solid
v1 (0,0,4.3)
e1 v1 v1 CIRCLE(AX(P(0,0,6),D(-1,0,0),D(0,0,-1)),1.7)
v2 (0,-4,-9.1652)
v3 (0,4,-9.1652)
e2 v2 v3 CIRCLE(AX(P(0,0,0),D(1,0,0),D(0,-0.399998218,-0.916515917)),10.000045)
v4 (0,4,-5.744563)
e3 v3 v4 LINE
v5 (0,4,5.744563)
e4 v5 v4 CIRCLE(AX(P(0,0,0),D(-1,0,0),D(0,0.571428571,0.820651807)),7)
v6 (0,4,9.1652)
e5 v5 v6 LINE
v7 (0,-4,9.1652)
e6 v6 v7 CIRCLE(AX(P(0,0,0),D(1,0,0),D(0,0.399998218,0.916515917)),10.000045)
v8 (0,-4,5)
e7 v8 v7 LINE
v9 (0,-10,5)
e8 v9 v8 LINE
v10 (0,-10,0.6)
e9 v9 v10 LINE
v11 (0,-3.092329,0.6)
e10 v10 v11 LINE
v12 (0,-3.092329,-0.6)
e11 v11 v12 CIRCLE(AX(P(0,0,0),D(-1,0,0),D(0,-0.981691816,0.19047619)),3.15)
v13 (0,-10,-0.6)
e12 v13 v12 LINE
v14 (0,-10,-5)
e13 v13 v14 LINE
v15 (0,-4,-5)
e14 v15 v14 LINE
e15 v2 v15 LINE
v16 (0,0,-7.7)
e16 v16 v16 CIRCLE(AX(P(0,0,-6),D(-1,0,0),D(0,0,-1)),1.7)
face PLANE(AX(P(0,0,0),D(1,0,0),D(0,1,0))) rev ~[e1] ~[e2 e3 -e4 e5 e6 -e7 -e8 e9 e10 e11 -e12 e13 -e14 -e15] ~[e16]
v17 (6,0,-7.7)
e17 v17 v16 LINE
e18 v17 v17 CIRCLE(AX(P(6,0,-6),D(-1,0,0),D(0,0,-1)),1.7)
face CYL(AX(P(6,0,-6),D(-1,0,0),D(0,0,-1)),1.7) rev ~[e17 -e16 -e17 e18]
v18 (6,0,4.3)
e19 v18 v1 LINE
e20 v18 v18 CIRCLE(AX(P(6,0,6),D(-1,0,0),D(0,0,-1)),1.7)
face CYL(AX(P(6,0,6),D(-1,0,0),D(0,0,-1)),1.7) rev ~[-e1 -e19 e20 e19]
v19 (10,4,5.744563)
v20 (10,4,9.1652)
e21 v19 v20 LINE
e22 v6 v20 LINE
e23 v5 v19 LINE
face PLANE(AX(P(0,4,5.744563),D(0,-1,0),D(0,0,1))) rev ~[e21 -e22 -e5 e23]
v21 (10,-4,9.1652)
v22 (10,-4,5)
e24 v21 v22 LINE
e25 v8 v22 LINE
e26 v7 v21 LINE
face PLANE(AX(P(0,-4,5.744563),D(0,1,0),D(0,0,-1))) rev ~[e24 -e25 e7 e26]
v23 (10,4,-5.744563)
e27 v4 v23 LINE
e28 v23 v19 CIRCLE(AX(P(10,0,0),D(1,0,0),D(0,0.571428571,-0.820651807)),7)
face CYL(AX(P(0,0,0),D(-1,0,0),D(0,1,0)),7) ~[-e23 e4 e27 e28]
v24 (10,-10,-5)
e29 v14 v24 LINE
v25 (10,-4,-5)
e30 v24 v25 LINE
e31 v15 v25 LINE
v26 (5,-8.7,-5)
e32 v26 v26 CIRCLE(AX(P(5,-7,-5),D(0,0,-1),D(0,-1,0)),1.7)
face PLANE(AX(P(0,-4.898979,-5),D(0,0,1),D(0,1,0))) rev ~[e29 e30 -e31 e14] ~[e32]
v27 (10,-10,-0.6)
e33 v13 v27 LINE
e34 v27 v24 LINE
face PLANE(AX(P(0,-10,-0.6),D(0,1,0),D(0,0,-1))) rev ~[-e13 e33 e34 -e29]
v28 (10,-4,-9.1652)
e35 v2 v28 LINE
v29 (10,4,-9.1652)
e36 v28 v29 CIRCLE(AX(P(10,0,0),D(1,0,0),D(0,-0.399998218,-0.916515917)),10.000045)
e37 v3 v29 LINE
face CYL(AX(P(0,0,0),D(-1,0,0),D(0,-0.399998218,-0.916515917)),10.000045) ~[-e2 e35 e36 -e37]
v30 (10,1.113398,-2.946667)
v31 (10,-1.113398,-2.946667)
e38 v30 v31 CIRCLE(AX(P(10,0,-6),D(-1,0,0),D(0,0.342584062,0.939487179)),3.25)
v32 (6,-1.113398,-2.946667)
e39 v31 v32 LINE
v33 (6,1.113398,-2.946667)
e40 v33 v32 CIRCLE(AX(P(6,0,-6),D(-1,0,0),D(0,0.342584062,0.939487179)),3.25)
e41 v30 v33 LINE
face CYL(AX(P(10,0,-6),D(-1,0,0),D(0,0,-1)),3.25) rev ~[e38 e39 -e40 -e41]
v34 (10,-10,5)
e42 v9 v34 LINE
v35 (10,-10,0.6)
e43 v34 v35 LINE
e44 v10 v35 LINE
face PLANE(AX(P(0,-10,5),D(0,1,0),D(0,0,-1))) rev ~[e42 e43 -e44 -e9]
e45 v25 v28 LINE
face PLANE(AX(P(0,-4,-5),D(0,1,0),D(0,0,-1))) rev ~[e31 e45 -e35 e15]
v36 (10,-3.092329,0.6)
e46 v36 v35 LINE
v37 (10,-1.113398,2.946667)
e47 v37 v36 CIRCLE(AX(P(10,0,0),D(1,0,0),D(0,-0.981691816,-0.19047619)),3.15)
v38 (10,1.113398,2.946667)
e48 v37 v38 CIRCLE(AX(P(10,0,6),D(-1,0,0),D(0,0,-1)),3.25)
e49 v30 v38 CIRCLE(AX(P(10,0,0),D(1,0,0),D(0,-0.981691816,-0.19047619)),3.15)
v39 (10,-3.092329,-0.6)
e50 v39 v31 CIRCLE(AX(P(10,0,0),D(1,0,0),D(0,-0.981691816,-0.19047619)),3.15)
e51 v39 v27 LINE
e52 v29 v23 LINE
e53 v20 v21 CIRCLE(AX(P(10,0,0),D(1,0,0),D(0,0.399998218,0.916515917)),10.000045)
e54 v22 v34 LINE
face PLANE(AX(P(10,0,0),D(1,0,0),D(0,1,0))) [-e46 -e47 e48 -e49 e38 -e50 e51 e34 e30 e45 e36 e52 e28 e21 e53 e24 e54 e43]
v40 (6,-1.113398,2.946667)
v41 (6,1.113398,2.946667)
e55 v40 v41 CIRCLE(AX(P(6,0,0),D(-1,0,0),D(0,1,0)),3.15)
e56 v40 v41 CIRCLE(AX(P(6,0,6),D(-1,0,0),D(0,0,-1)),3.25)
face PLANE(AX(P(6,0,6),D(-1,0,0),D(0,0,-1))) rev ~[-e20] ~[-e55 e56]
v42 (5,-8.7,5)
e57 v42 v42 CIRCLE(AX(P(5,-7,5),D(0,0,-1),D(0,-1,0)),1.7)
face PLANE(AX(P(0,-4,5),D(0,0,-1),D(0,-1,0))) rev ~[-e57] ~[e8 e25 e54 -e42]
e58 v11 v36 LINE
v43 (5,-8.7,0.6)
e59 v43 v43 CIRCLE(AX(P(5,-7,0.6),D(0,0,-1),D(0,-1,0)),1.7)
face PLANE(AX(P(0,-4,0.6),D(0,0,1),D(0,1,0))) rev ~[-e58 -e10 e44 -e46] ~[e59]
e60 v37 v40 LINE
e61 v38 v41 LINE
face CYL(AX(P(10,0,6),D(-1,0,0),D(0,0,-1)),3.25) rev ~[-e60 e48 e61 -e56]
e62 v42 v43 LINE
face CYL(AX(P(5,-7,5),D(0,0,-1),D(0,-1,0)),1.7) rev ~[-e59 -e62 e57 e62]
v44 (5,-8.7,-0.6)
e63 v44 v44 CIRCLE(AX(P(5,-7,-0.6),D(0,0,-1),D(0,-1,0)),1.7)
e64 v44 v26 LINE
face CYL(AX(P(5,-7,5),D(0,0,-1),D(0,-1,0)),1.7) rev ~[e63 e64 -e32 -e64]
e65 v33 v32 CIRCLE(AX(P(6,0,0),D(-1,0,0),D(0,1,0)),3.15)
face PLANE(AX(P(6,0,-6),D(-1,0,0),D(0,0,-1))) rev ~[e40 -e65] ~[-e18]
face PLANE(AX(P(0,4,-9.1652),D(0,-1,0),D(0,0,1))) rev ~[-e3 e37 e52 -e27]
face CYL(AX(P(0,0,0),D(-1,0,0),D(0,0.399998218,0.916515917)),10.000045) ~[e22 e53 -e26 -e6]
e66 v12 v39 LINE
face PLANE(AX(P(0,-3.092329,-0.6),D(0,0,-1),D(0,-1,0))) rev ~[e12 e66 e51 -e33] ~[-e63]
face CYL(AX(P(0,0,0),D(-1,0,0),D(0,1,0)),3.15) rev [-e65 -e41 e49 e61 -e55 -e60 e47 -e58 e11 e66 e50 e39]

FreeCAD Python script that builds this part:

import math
import FreeCAD as App
import Part
import Sketcher

V = App.Vector

doc = App.newDocument("Part")
body = doc.addObject("PartDesign::Body", "Body")

# Sketch on YZ plane
sketch1 = body.newObject("Sketcher::SketchObject", "Sketch")
sketch1.AttachmentSupport = (doc.getObject("YZ_Plane"), [""])
sketch1.MapMode = "FlatFace"
sketch1.addGeometry([
    Part.ArcOfCircle(Part.Circle(V(0, 0, 0), V(0, 0, 1), 3.1), math.radians(-169), math.radians(169)),  # 0
    Part.LineSegment(V(-3.1, -0.6, 0), V(-10, -0.6, 0)),  # 1
    Part.LineSegment(V(-10, -0.6, 0), V(-10, -5, 0)),  # 2
    Part.LineSegment(V(-10, -5, 0), V(-4, -5, 0)),  # 3
    Part.LineSegment(V(-4, -5, 0), V(-4, -9.2, 0)),  # 4
    Part.ArcOfCircle(Part.Circle(V(0, 0, 0), V(0, 0, 1), 10), math.radians(-114), math.radians(-66)),  # 5
    Part.LineSegment(V(4, -9.2, 0), V(4, -5.7, 0)),  # 6
    Part.ArcOfCircle(Part.Circle(V(0, 0, 0), V(0, 0, 1), 7), math.radians(-55), math.radians(55)),  # 7
    Part.LineSegment(V(4, 5.7, 0), V(4, 9.2, 0)),  # 8
    Part.ArcOfCircle(Part.Circle(V(0, 0, 0), V(0, 0, 1), 10), math.radians(66), math.radians(114)),  # 9
    Part.LineSegment(V(-4, 9.2, 0), V(-4, 5, 0)),  # 10
    Part.LineSegment(V(-4, 5, 0), V(-10, 5, 0)),  # 11
    Part.LineSegment(V(-10, 5, 0), V(-10, 0.6, 0)),  # 12
    Part.LineSegment(V(-10, 0.6, 0), V(-3.1, 0.6, 0)),  # 13
], False)
sketch1.addConstraint([
    Sketcher.Constraint("Coincident", 0, 1, 1, 1),
    Sketcher.Constraint("Coincident", 1, 2, 2, 1),
    Sketcher.Constraint("Coincident", 2, 2, 3, 1),
    Sketcher.Constraint("Coincident", 3, 2, 4, 1),
    Sketcher.Constraint("Coincident", 4, 2, 5, 1),
    Sketcher.Constraint("Coincident", 5, 2, 6, 1),
    Sketcher.Constraint("Coincident", 6, 2, 7, 1),
    Sketcher.Constraint("Coincident", 7, 2, 8, 1),
    Sketcher.Constraint("Coincident", 8, 2, 9, 1),
    Sketcher.Constraint("Coincident", 9, 2, 10, 1),
    Sketcher.Constraint("Coincident", 10, 2, 11, 1),
    Sketcher.Constraint("Coincident", 11, 2, 12, 1),
    Sketcher.Constraint("Coincident", 12, 2, 13, 1),
    Sketcher.Constraint("Coincident", 13, 2, 0, 2),
    Sketcher.Constraint("Horizontal", 1),
    Sketcher.Constraint("Vertical", 2),
    Sketcher.Constraint("Horizontal", 3),
    Sketcher.Constraint("Vertical", 4),
    Sketcher.Constraint("Vertical", 6),
    Sketcher.Constraint("Vertical", 8),
    Sketcher.Constraint("Vertical", 10),
    Sketcher.Constraint("Horizontal", 11),
    Sketcher.Constraint("Vertical", 12),
    Sketcher.Constraint("Horizontal", 13),
    Sketcher.Constraint("Coincident", 0, 3, -1, 1),
    Sketcher.Constraint("Coincident", 5, 3, -1, 1),
    Sketcher.Constraint("Coincident", 7, 3, -1, 1),
    Sketcher.Constraint("Coincident", 9, 3, -1, 1),
    Sketcher.Constraint("Equal", 5, 9),
    Sketcher.Constraint("Symmetric", 3, 2, 10, 2, -1),
    Sketcher.Constraint("Symmetric", 1, 2, 12, 2, -1),
    Sketcher.Constraint("Horizontal", 4, 2, 5, 2),
    Sketcher.Constraint("Horizontal", 8, 2, 9, 2),
    Sketcher.Constraint("Radius", 5, 10.0),
    Sketcher.Constraint("Radius", 7, 7.0),
    Sketcher.Constraint("Radius", 0, 3.15),
    Sketcher.Constraint("DistanceX", 1, 2, -1, 1, 10.0),
    Sketcher.Constraint("DistanceY", 2, 2, -1, 1, 5.0),
    Sketcher.Constraint("DistanceX", 4, 2, 5, 2, 8.0),
    Sketcher.Constraint("DistanceY", 0, 1, -1, 1, 0.6),
])
pad1 = body.newObject("PartDesign::Pad", "Pad")
pad1.Profile = sketch1
pad1.Length = 10

# Sketch on YZ plane
sketch2 = body.newObject("Sketcher::SketchObject", "Sketch001")
sketch2.AttachmentSupport = (doc.getObject("YZ_Plane"), [""])
sketch2.MapMode = "FlatFace"
sketch2.AttachmentOffset = App.Placement(V(0, 0, 10), App.Rotation())
sketch2.addGeometry([
    Part.Circle(V(0, 6, 0), V(0, 0, 1), 1.7),
    Part.Circle(V(0, -6, 0), V(0, 0, 1), 1.7),
], False)
sketch2.addConstraint([
    Sketcher.Constraint("Equal", 0, 1),
    Sketcher.Constraint("Symmetric", 0, 3, 1, 3, -1, 1),
    Sketcher.Constraint("PointOnObject", 0, 3, -2),
    Sketcher.Constraint("Diameter", 0, 3.4),
    Sketcher.Constraint("DistanceY", -1, 1, 0, 3, 6.0),
])
doc.recompute()
hole = body.newObject("PartDesign::Hole", "Hole")
hole.Profile = sketch2
hole.ThreadType = "None"
hole.Diameter = 3.4
hole.DepthType = "ThroughAll"
hole.HoleCutType = "Counterbore"
hole.HoleCutDiameter = 6.5
hole.HoleCutDepth = 4

# Sketch on XY plane
sketch3 = body.newObject("Sketcher::SketchObject", "Sketch002")
sketch3.AttachmentSupport = (doc.getObject("XY_Plane"), [""])
sketch3.MapMode = "FlatFace"
sketch3.AttachmentOffset = App.Placement(V(0, 0, 5), App.Rotation())
sketch3.addGeometry(Part.Circle(V(5, -7, 0), V(0, 0, 1), 1.7), False)
sketch3.addConstraint([
    Sketcher.Constraint("Diameter", 0, 3.4),
    Sketcher.Constraint("DistanceX", -1, 1, 0, 3, 5.0),
    Sketcher.Constraint("DistanceY", 0, 3, -1, 1, 7.0),
])
doc.recompute()
hole2 = body.newObject("PartDesign::Hole", "Hole001")
hole2.Profile = sketch3
hole2.ThreadType = "None"
hole2.Diameter = 3.4
hole2.DepthType = "ThroughAll"

doc.recompute()
